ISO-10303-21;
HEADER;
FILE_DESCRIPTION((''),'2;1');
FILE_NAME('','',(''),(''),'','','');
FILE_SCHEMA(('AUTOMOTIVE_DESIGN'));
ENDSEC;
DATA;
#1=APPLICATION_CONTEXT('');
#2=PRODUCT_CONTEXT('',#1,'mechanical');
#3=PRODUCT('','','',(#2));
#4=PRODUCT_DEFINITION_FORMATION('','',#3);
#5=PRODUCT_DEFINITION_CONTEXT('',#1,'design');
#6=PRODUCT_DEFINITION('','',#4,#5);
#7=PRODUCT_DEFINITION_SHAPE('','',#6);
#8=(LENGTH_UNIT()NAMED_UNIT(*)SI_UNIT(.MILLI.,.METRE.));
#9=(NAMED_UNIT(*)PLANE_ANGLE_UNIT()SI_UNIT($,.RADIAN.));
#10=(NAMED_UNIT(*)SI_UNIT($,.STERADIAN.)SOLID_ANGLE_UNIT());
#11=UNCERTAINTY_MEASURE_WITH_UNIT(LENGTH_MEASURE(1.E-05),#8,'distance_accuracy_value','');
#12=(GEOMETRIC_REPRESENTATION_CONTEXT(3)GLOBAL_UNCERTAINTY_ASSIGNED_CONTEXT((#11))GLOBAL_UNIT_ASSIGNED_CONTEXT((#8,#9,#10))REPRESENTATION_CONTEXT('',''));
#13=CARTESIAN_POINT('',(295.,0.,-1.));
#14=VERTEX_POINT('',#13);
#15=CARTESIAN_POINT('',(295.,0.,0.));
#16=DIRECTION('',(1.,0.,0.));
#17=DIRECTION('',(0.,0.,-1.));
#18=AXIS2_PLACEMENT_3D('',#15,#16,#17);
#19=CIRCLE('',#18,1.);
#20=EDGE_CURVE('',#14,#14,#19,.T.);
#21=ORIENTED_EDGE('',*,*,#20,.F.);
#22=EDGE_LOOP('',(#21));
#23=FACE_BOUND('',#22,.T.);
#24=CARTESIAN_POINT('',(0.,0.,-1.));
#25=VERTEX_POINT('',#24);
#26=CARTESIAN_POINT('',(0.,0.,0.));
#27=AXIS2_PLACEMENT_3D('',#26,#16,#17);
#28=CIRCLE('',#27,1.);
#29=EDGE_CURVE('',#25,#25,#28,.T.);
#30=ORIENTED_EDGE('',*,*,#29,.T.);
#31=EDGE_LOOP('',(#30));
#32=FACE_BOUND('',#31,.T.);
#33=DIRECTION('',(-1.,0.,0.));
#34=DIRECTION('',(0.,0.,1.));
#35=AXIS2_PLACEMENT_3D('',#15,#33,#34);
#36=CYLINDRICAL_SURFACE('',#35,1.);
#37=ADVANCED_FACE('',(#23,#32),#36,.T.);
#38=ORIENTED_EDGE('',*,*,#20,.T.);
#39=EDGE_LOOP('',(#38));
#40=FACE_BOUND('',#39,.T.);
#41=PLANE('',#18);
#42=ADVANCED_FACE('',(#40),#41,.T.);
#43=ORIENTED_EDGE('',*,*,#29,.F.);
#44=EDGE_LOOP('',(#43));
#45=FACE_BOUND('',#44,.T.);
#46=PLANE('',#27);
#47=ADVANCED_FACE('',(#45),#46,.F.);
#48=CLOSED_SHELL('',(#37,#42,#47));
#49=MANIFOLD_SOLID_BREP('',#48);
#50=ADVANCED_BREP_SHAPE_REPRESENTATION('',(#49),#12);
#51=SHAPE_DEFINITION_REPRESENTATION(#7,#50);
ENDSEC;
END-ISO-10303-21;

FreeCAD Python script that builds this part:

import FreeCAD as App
import Part
import Sketcher

V = App.Vector
Q = App.Units.Quantity

doc = App.newDocument("Part")
body = doc.addObject("PartDesign::Body", "Body")

# Sketch on YZ plane
sketch1 = body.newObject("Sketcher::SketchObject", "Sketch")
sketch1.AttachmentSupport = (doc.getObject("YZ_Plane"), [""])
sketch1.MapMode = "FlatFace"
sketch1.addGeometry(Part.Circle(V(0, 0, 0), V(0, 0, 1), 1), False)
sketch1.addConstraint(Sketcher.Constraint("Coincident", 0, 3, -1, 1))
sketch1.addConstraint(Sketcher.Constraint("Diameter", 0, Q("2 mm")))
pad1 = body.newObject("PartDesign::Pad", "Pad")
pad1.Profile = sketch1
pad1.Length = 295

doc.recompute()
